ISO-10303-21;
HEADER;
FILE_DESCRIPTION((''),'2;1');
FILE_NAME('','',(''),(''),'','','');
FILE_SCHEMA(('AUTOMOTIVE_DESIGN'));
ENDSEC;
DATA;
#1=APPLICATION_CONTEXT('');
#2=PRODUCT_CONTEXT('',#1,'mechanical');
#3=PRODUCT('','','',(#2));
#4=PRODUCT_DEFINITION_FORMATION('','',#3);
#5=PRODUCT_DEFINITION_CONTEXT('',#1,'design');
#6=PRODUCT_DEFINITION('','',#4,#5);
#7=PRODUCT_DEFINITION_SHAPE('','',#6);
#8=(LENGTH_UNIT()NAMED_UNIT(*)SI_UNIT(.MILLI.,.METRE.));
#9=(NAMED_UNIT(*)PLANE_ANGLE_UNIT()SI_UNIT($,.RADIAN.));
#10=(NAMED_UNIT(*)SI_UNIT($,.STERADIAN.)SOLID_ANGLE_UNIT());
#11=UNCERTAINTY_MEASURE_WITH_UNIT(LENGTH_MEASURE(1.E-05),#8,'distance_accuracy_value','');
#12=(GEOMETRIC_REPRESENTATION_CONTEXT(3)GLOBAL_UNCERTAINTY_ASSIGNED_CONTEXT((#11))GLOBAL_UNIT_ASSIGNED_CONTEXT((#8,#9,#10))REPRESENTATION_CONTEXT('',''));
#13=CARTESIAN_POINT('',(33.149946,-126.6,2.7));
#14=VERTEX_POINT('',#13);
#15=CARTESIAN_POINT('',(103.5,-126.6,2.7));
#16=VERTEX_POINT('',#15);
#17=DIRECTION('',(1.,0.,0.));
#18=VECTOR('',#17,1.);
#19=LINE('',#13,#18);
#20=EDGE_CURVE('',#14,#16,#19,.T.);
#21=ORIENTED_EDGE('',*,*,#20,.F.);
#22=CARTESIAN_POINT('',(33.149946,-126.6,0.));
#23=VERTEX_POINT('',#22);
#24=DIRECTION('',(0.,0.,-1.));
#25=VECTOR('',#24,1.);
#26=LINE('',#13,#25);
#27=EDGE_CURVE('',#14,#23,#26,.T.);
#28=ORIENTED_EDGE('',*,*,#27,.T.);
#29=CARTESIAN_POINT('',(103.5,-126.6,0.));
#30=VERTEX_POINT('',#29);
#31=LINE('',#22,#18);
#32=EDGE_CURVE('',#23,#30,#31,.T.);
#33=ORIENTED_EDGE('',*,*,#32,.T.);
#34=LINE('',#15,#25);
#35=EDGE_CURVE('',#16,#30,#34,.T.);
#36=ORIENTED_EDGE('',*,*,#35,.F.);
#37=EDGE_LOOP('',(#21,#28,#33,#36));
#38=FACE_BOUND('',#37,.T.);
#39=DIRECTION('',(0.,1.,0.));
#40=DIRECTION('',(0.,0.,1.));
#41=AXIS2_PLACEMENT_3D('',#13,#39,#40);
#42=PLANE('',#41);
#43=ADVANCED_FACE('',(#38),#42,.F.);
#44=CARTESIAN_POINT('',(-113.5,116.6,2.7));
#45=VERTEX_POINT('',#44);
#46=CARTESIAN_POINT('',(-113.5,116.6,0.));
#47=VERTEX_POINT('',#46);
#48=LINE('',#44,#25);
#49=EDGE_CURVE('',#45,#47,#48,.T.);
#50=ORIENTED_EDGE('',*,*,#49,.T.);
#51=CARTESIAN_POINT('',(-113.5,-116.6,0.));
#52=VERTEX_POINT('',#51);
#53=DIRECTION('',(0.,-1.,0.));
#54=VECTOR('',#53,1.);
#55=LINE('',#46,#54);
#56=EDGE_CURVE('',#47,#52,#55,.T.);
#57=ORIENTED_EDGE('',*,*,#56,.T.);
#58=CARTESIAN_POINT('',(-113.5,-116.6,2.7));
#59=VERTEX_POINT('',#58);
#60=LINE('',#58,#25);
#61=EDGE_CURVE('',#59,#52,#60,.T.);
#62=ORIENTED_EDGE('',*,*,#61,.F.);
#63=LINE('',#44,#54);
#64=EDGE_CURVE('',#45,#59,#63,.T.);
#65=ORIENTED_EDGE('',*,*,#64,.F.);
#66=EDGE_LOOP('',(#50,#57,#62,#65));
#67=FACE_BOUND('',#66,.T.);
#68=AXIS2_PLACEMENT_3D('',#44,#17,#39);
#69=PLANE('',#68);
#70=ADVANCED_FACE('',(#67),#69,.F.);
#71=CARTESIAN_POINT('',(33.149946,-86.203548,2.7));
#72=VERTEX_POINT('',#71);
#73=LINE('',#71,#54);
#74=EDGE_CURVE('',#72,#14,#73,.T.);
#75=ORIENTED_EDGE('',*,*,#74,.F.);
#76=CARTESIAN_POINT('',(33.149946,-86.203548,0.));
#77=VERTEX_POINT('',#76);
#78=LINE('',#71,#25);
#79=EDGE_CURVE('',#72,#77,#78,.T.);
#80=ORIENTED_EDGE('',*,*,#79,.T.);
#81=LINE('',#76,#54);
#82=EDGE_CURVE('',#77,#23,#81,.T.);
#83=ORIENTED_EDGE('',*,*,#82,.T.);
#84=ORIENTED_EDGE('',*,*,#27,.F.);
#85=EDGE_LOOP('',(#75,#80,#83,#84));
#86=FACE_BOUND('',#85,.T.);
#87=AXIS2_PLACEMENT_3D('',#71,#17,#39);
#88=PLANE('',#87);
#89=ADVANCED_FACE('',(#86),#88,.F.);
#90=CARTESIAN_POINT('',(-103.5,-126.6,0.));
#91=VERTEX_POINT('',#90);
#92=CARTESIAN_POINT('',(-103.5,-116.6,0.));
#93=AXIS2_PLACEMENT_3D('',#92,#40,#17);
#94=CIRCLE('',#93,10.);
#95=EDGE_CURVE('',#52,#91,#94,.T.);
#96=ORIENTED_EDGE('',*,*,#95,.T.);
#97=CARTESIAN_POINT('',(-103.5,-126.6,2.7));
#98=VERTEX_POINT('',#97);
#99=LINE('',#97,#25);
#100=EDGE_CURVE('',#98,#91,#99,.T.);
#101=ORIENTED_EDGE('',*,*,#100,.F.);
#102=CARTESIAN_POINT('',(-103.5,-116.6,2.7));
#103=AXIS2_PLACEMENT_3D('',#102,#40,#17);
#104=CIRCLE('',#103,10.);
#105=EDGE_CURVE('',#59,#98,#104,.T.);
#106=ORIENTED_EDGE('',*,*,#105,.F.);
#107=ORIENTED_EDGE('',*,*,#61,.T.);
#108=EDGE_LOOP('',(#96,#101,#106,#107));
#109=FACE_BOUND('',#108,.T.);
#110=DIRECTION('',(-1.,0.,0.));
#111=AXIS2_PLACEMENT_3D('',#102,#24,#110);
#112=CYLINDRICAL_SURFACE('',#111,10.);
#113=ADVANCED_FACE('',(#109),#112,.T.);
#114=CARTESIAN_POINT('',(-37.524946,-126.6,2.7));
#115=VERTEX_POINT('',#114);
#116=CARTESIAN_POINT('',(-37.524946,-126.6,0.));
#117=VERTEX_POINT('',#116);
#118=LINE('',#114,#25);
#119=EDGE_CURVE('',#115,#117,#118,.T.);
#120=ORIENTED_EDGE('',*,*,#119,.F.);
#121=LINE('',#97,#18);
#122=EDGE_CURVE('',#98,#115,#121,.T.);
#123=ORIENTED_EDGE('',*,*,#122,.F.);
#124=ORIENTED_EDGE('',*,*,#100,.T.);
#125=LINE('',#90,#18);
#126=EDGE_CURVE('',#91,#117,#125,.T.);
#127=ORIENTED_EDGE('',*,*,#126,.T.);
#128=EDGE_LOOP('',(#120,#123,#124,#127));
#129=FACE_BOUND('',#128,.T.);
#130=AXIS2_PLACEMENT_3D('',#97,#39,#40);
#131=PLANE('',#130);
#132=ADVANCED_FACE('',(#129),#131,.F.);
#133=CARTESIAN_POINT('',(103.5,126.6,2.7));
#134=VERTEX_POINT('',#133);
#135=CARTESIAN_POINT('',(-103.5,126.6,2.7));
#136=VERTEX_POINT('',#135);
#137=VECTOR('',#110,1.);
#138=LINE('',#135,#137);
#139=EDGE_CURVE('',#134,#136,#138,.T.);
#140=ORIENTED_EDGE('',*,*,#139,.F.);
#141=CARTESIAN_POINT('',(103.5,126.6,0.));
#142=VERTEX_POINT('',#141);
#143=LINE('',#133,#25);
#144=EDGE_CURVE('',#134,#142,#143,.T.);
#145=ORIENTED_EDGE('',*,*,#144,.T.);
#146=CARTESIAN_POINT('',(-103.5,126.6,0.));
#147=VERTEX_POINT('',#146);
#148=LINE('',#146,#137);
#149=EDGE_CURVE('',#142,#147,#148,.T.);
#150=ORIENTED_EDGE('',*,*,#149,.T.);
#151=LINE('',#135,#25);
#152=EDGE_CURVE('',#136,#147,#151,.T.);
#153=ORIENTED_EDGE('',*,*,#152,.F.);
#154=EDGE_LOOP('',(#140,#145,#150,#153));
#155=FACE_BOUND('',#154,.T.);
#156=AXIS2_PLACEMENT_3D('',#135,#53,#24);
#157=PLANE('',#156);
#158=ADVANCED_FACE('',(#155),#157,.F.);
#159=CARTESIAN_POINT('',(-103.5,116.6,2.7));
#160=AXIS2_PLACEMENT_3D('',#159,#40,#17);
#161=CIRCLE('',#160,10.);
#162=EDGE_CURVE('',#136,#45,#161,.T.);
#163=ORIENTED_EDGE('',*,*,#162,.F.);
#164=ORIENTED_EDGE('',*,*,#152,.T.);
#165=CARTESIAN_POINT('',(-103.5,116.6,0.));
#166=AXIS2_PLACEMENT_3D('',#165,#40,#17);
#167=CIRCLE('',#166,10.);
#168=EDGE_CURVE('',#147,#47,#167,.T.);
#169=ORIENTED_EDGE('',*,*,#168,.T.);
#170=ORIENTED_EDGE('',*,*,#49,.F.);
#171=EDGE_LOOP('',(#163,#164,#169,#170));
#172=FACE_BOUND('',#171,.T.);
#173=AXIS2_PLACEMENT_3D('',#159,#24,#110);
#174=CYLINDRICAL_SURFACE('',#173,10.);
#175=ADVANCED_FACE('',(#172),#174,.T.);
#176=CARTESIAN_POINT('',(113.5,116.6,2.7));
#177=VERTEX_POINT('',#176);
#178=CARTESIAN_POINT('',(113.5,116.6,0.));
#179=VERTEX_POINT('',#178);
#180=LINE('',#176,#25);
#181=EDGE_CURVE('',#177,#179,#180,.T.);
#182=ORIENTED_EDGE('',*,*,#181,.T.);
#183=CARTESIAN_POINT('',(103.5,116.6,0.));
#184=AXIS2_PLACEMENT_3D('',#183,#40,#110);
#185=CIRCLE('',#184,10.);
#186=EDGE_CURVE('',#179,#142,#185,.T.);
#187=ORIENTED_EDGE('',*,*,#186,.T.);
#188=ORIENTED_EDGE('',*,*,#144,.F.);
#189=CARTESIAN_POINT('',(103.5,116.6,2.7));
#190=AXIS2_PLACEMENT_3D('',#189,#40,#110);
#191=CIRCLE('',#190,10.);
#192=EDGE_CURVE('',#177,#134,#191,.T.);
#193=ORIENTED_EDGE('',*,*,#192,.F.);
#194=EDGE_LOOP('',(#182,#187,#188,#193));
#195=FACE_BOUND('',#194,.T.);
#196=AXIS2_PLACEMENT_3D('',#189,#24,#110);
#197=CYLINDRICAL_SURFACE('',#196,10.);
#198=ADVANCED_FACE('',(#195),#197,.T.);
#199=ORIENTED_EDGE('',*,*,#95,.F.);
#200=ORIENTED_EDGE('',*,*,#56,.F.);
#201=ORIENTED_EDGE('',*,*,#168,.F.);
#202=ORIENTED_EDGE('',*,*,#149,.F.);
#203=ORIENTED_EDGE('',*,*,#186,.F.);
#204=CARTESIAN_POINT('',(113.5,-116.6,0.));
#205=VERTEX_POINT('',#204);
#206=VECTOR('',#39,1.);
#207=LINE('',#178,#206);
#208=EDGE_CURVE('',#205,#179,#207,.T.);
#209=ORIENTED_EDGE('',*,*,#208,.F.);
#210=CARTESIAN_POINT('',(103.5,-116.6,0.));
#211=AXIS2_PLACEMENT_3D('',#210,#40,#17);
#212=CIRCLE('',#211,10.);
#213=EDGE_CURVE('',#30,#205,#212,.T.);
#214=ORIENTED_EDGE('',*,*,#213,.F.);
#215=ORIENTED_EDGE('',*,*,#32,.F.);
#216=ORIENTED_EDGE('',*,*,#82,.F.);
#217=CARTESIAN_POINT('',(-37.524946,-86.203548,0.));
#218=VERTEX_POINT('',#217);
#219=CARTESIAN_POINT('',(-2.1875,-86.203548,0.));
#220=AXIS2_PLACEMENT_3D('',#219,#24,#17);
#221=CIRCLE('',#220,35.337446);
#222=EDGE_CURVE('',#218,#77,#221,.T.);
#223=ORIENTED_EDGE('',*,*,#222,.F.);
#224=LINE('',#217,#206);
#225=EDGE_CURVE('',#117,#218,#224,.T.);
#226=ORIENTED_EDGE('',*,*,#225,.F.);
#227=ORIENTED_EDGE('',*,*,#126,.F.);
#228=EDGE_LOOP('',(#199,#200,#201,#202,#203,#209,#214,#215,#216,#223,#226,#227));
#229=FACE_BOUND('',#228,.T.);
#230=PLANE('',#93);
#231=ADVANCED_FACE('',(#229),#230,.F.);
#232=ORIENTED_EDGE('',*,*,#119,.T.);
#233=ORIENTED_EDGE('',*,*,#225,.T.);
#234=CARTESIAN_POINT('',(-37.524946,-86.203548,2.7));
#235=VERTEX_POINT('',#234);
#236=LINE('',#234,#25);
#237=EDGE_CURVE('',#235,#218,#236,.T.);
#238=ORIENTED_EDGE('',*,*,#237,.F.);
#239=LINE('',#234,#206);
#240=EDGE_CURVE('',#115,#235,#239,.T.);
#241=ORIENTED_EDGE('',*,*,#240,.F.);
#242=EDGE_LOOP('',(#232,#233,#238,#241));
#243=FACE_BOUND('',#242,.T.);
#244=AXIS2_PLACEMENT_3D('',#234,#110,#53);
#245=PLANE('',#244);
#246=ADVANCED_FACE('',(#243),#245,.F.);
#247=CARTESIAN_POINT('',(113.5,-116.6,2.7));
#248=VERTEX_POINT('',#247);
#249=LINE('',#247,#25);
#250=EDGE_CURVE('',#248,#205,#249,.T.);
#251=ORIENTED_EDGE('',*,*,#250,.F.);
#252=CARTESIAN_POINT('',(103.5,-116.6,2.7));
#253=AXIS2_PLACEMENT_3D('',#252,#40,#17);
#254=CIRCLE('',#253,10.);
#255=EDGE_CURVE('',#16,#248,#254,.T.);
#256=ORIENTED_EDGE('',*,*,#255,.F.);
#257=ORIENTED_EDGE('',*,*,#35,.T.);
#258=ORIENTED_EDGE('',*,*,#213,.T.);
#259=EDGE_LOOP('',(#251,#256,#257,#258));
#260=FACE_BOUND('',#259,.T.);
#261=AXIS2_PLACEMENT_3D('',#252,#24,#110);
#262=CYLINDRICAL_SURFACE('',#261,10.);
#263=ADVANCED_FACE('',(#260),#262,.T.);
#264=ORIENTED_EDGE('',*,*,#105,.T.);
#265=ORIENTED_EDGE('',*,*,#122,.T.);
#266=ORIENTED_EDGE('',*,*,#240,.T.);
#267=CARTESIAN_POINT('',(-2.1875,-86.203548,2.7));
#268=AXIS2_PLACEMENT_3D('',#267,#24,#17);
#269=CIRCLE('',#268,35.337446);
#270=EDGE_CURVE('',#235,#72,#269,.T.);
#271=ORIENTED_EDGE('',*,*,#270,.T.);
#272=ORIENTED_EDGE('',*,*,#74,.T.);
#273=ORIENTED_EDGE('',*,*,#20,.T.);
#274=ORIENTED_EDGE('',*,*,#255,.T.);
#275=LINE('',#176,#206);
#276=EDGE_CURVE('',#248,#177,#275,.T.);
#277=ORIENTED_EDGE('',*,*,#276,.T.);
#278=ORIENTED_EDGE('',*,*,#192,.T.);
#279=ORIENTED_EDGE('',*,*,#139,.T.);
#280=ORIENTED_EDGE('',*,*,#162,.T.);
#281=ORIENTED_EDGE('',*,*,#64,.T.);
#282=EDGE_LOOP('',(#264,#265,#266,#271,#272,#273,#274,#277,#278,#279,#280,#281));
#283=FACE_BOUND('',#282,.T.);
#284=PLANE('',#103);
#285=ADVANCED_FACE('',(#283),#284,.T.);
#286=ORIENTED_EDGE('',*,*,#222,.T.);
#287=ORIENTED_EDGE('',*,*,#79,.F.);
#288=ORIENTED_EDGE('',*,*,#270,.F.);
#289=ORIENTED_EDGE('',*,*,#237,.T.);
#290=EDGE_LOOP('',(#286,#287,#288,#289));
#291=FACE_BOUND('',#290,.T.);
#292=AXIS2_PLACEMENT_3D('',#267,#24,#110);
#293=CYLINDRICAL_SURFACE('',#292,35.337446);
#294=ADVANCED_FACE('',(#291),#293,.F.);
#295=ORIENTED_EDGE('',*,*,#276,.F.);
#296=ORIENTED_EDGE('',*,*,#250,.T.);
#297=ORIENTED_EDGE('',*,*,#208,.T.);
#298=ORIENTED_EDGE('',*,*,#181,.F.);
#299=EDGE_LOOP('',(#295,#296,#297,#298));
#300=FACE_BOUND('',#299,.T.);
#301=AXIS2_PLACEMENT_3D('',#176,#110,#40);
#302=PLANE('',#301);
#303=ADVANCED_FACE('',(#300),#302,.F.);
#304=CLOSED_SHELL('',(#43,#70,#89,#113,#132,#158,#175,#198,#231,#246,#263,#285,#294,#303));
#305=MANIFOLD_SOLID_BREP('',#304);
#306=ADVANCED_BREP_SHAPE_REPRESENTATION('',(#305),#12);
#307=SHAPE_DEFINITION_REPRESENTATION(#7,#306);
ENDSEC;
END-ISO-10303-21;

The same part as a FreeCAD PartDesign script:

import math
import FreeCAD as App
import Part
import Sketcher
from FreeCAD import Vector

doc = App.newDocument("Part")
body = doc.addObject("PartDesign::Body", "Body")

sketch1 = body.newObject("Sketcher::SketchObject", "Sketch")
sketch1.AttachmentSupport = (doc.getObject("XY_Plane"), [""])
sketch1.MapMode = "FlatFace"
sketch1.addGeometry(Part.LineSegment(Vector(103.5, 126.6, 0), Vector(-103.5, 126.6, 0)), False)
sketch1.addGeometry(Part.ArcOfCircle(Part.Circle(Vector(-103.5, 116.6, 0), Vector(0, 0, 1), 10), math.radians(90), math.radians(180)), False)
sketch1.addGeometry(Part.LineSegment(Vector(-113.5, 116.6, 0), Vector(-113.5, -116.6, 0)), False)
sketch1.addGeometry(Part.ArcOfCircle(Part.Circle(Vector(-103.5, -116.6, 0), Vector(0, 0, 1), 10), math.radians(180), math.radians(270)), False)
sketch1.addGeometry(Part.LineSegment(Vector(-103.5, -126.6, 0), Vector(-37.524946, -126.6, 0)), False)
sketch1.addGeometry(Part.LineSegment(Vector(-37.524946, -126.6, 0), Vector(-37.524946, -86.203548, 0)), False)
sketch1.addGeometry(Part.ArcOfCircle(Part.Circle(Vector(-2.1875, -86.203548, 0), Vector(0, 0, 1), 35.337446), math.radians(0), math.radians(180)), False)
sketch1.addGeometry(Part.LineSegment(Vector(33.149946, -86.203548, 0), Vector(33.149946, -126.6, 0)), False)
sketch1.addGeometry(Part.LineSegment(Vector(33.149946, -126.6, 0), Vector(103.5, -126.6, 0)), False)
sketch1.addGeometry(Part.ArcOfCircle(Part.Circle(Vector(103.5, -116.6, 0), Vector(0, 0, 1), 10), math.radians(-90), math.radians(0)), False)
sketch1.addGeometry(Part.LineSegment(Vector(113.5, -116.6, 0), Vector(113.5, 116.6, 0)), False)
sketch1.addGeometry(Part.ArcOfCircle(Part.Circle(Vector(103.5, 116.6, 0), Vector(0, 0, 1), 10), math.radians(0), math.radians(90)), False)
sketch1.addConstraint(Sketcher.Constraint("Tangent", 0, 2, 1, 1))
sketch1.addConstraint(Sketcher.Constraint("Tangent", 1, 2, 2, 1))
sketch1.addConstraint(Sketcher.Constraint("Tangent", 2, 2, 3, 1))
sketch1.addConstraint(Sketcher.Constraint("Tangent", 3, 2, 4, 1))
sketch1.addConstraint(Sketcher.Constraint("Coincident", 4, 2, 5, 1))
sketch1.addConstraint(Sketcher.Constraint("Tangent", 5, 2, 6, 2))
sketch1.addConstraint(Sketcher.Constraint("Tangent", 6, 1, 7, 1))
sketch1.addConstraint(Sketcher.Constraint("Coincident", 7, 2, 8, 1))
sketch1.addConstraint(Sketcher.Constraint("Tangent", 8, 2, 9, 1))
sketch1.addConstraint(Sketcher.Constraint("Tangent", 9, 2, 10, 1))
sketch1.addConstraint(Sketcher.Constraint("Tangent", 10, 2, 11, 1))
sketch1.addConstraint(Sketcher.Constraint("Tangent", 11, 2, 0, 1))
sketch1.addConstraint(Sketcher.Constraint("Horizontal", 0))
sketch1.addConstraint(Sketcher.Constraint("Vertical", 2))
sketch1.addConstraint(Sketcher.Constraint("Horizontal", 4))
sketch1.addConstraint(Sketcher.Constraint("Vertical", 5))
sketch1.addConstraint(Sketcher.Constraint("Vertical", 7))
sketch1.addConstraint(Sketcher.Constraint("Horizontal", 8))
sketch1.addConstraint(Sketcher.Constraint("Vertical", 10))
sketch1.addConstraint(Sketcher.Constraint("Equal", 1, 3))
sketch1.addConstraint(Sketcher.Constraint("Equal", 3, 9))
sketch1.addConstraint(Sketcher.Constraint("Equal", 9, 11))
sketch1.addConstraint(Sketcher.Constraint("Symmetric", 1, 3, 9, 3, -1, 1))
sketch1.addConstraint(Sketcher.Constraint("Horizontal", 3, 3, 9, 3))
sketch1.addConstraint(Sketcher.Constraint("Radius", 1, 10.0))
sketch1.addConstraint(Sketcher.Constraint("DistanceX", 0, 2, 0, 1, 207.0))
sketch1.addConstraint(Sketcher.Constraint("DistanceY", 2, 2, 2, 1, 233.2))
sketch1.addConstraint(Sketcher.Constraint("Radius", 6, 35.337446))
sketch1.addConstraint(Sketcher.Constraint("DistanceY", 5, 1, 5, 2, 40.396452))
sketch1.addConstraint(Sketcher.Constraint("DistanceX", 6, 3, -1, 1, 2.1875))
pad1 = body.newObject("PartDesign::Pad", "Pad")
pad1.Profile = sketch1
pad1.Length = 2.7

doc.recompute()
